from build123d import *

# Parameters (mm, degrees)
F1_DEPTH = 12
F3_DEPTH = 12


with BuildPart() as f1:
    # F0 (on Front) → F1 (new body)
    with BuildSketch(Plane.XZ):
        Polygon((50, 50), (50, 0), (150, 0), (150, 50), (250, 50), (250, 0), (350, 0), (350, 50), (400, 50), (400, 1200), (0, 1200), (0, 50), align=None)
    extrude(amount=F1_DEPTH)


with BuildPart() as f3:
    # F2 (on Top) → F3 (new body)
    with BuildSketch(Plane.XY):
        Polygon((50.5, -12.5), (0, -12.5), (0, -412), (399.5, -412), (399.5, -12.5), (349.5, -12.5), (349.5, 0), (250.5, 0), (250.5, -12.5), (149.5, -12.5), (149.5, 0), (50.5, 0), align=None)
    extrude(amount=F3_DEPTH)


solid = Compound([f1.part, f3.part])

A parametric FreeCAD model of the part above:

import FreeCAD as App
import Part
import Sketcher

V = App.Vector
Q = App.Units.Quantity


def add_polygon(sketch, points):
    """Adds a closed chain of lines whose ends are joined by coincident constraints."""
    first, n = sketch.GeometryCount, len(points)
    for a, b in zip(points, points[1:] + points[:1]):
        sketch.addGeometry(Part.LineSegment(App.Vector(*a, 0), App.Vector(*b, 0)), False)
    for i in range(n):
        sketch.addConstraint(Sketcher.Constraint("Coincident", first + i, 2, first + (i + 1) % n, 1))

doc = App.newDocument("Part")
params = doc.addObject("Spreadsheet::Sheet", "Params")
for row, (alias, value) in enumerate([
    ("sketch1_width", "100 mm"),
    ("sketch1_width2", "50 mm"),
    ("sketch1_height", "1150 mm"),
    ("pad1_length", "12 mm"),
    ("sketch2_width", "50 mm"),
    ("sketch2_width2", "99 mm"),
    ("sketch2_width3", "101 mm"),
    ("sketch2_width4", "50.5 mm"),
    ("sketch2_height", "12.5 mm"),
    ("pad2_length", "12 mm"),
], start=1):
    params.set(f"A{row}", alias)
    params.set(f"B{row}", "=" + value)
    params.setAlias(f"B{row}", alias)

body = doc.addObject("PartDesign::Body", "Body")

# Sketch on XZ plane
sketch1 = body.newObject("Sketcher::SketchObject", "Sketch")
sketch1.AttachmentSupport = (doc.getObject("XZ_Plane"), [""])
sketch1.MapMode = "FlatFace"
add_polygon(sketch1, [(50, 50), (50, 0), (150, 0), (150, 50), (250, 50), (250, 0), (350, 0), (350, 50), (400, 50), (400, 1200), (0, 1200), (0, 50)])  # lines 0-11
sketch1.addConstraint(Sketcher.Constraint("Vertical", 0))
sketch1.addConstraint(Sketcher.Constraint("Horizontal", 1))
sketch1.addConstraint(Sketcher.Constraint("Vertical", 2))
sketch1.addConstraint(Sketcher.Constraint("Horizontal", 3))
sketch1.addConstraint(Sketcher.Constraint("Vertical", 4))
sketch1.addConstraint(Sketcher.Constraint("Horizontal", 5))
sketch1.addConstraint(Sketcher.Constraint("Vertical", 6))
sketch1.addConstraint(Sketcher.Constraint("Horizontal", 7))
sketch1.addConstraint(Sketcher.Constraint("Vertical", 8))
sketch1.addConstraint(Sketcher.Constraint("Horizontal", 9))
sketch1.addConstraint(Sketcher.Constraint("Vertical", 10))
sketch1.addConstraint(Sketcher.Constraint("Horizontal", 11))
sketch1.addConstraint(Sketcher.Constraint("PointOnObject", 0, 2, -1))
sketch1.addConstraint(Sketcher.Constraint("PointOnObject", 4, 2, -1))
sketch1.addConstraint(Sketcher.Constraint("PointOnObject", 9, 2, -2))
sketch1.addConstraint(Sketcher.Constraint("Horizontal", 3, 2, 6, 2))
sketch1.addConstraint(Sketcher.Constraint("Horizontal", 7, 2, 10, 2))
sketch1.addConstraint(Sketcher.Constraint("Equal", 1, 3))
sketch1.addConstraint(Sketcher.Constraint("Equal", 3, 5))
sketch1.addConstraint(Sketcher.Constraint("Equal", 7, 11))
sketch1.addConstraint(Sketcher.Constraint("Equal", 11, 0))
sketch1.addConstraint(Sketcher.Constraint("DistanceX", 1, 1, 1, 2, Q("100 mm")))
sketch1.addConstraint(Sketcher.Constraint("DistanceX", 7, 1, 7, 2, Q("50 mm")))
sketch1.addConstraint(Sketcher.Constraint("DistanceY", 8, 1, 8, 2, Q("1150 mm")))
sketch1.setExpression("Constraints[33]", "Params.sketch1_width")
sketch1.setExpression("Constraints[34]", "Params.sketch1_width2")
sketch1.setExpression("Constraints[35]", "Params.sketch1_height")
pad1 = body.newObject("PartDesign::Pad", "Pad")
pad1.Profile = sketch1
pad1.setExpression("Length", "Params.pad1_length")
body2 = doc.addObject("PartDesign::Body", "Body001")

# Sketch on XY plane
sketch2 = body2.newObject("Sketcher::SketchObject", "Sketch001")
sketch2.AttachmentSupport = (doc.getObject("XY_Plane001"), [""])
sketch2.MapMode = "FlatFace"
add_polygon(sketch2, [(50, -12), (0, -12), (0, -412), (400, -412), (400, -12), (350, -12), (350, 0), (250, 0), (250, -12), (150, -12), (150, 0), (50, 0)])  # lines 0-11
sketch2.addConstraint(Sketcher.Constraint("Horizontal", 0))
sketch2.addConstraint(Sketcher.Constraint("Vertical", 1))
sketch2.addConstraint(Sketcher.Constraint("Horizontal", 2))
sketch2.addConstraint(Sketcher.Constraint("Vertical", 3))
sketch2.addConstraint(Sketcher.Constraint("Horizontal", 4))
sketch2.addConstraint(Sketcher.Constraint("Vertical", 5))
sketch2.addConstraint(Sketcher.Constraint("Horizontal", 6))
sketch2.addConstraint(Sketcher.Constraint("Vertical", 7))
sketch2.addConstraint(Sketcher.Constraint("Horizontal", 8))
sketch2.addConstraint(Sketcher.Constraint("Vertical", 9))
sketch2.addConstraint(Sketcher.Constraint("Horizontal", 10))
sketch2.addConstraint(Sketcher.Constraint("Vertical", 11))
sketch2.addConstraint(Sketcher.Constraint("PointOnObject", 0, 2, -2))
sketch2.addConstraint(Sketcher.Constraint("PointOnObject", 5, 2, -1))
sketch2.addConstraint(Sketcher.Constraint("PointOnObject", 9, 2, -1))
sketch2.addConstraint(Sketcher.Constraint("Horizontal", 0, 2, 3, 2))
sketch2.addConstraint(Sketcher.Constraint("Horizontal", 4, 2, 7, 2))
sketch2.addConstraint(Sketcher.Constraint("Equal", 6, 10))
sketch2.addConstraint(Sketcher.Constraint("Equal", 2, 1))
sketch2.addConstraint(Sketcher.Constraint("DistanceX", 4, 2, 4, 1, Q("50 mm")))
sketch2.addConstraint(Sketcher.Constraint("DistanceX", 6, 2, 6, 1, Q("99 mm")))
sketch2.addConstraint(Sketcher.Constraint("DistanceX", 8, 2, 8, 1, Q("101 mm")))
sketch2.addConstraint(Sketcher.Constraint("DistanceX", 0, 2, 0, 1, Q("50.5 mm")))
sketch2.addConstraint(Sketcher.Constraint("DistanceY", 5, 1, 5, 2, Q("12.5 mm")))
sketch2.setExpression("Constraints[31]", "Params.sketch2_width")
sketch2.setExpression("Constraints[32]", "Params.sketch2_width2")
sketch2.setExpression("Constraints[33]", "Params.sketch2_width3")
sketch2.setExpression("Constraints[34]", "Params.sketch2_width4")
sketch2.setExpression("Constraints[35]", "Params.sketch2_height")
pad2 = body2.newObject("PartDesign::Pad", "Pad001")
pad2.Profile = sketch2
pad2.setExpression("Length", "Params.pad2_length")

doc.recompute()
